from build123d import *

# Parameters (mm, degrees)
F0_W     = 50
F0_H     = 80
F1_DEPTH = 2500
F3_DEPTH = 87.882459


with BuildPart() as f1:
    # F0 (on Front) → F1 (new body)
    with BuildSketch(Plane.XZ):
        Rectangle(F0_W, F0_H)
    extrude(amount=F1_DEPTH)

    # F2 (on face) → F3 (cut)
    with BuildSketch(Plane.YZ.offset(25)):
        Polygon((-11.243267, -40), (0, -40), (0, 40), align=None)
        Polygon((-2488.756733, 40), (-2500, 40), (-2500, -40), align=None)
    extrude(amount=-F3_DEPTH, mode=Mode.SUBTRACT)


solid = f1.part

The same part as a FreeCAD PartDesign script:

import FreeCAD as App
import Part
import Sketcher
from FreeCAD import Vector
Q = App.Units.Quantity

doc = App.newDocument("Part")
body = doc.addObject("PartDesign::Body", "Body")

sketch1 = doc.addObject("Sketcher::SketchObject", "Sketch")
body.addObject(sketch1)
sketch1.AttachmentSupport = (doc.XZ_Plane, [""])
sketch1.MapMode = "FlatFace"
sketch1.addGeometry([
    Part.LineSegment(Vector(-25, 40, 0), Vector(-25, -40, 0)),
    Part.LineSegment(Vector(-25, -40, 0), Vector(25, -40, 0)),
    Part.LineSegment(Vector(25, -40, 0), Vector(25, 40, 0)),
    Part.LineSegment(Vector(25, 40, 0), Vector(-25, 40, 0)),
], False)
sketch1.addConstraint([
    Sketcher.Constraint("Coincident", 0, 2, 1, 1),
    Sketcher.Constraint("Coincident", 1, 2, 2, 1),
    Sketcher.Constraint("Coincident", 2, 2, 3, 1),
    Sketcher.Constraint("Coincident", 3, 2, 0, 1),
    Sketcher.Constraint("Vertical", 0),
    Sketcher.Constraint("Horizontal", 1),
    Sketcher.Constraint("Vertical", 2),
    Sketcher.Constraint("Horizontal", 3),
    Sketcher.Constraint("Symmetric", 0, 2, 2, 2, -1, 1),
    Sketcher.Constraint("DistanceX", 1, 1, 1, 2, 50.0),
    Sketcher.Constraint("DistanceY", 0, 2, 0, 1, 80.0),
])
pad1 = doc.addObject("PartDesign::Pad", "Pad")
body.addObject(pad1)
pad1.Profile = sketch1
pad1.Length = 2500

sketch2 = doc.addObject("Sketcher::SketchObject", "Sketch001")
body.addObject(sketch2)
sketch2.AttachmentSupport = (doc.YZ_Plane, [""])
sketch2.MapMode = "FlatFace"
sketch2.AttachmentOffset = App.Placement(Vector(0, 0, 25), App.Rotation())
sketch2.addGeometry([
    Part.LineSegment(Vector(-11, -40, 0), Vector(0, -40, 0)),
    Part.LineSegment(Vector(0, -40, 0), Vector(0, 40, 0)),
    Part.LineSegment(Vector(0, 40, 0), Vector(-11, -40, 0)),
    Part.LineSegment(Vector(-2489, 40, 0), Vector(-2500, 40, 0)),
    Part.LineSegment(Vector(-2500, 40, 0), Vector(-2500, -40, 0)),
    Part.LineSegment(Vector(-2500, -40, 0), Vector(-2489, 40, 0)),
], False)
sketch2.addConstraint([
    Sketcher.Constraint("Coincident", 0, 2, 1, 1),
    Sketcher.Constraint("Coincident", 1, 2, 2, 1),
    Sketcher.Constraint("Coincident", 2, 2, 0, 1),
    Sketcher.Constraint("Coincident", 3, 2, 4, 1),
    Sketcher.Constraint("Coincident", 4, 2, 5, 1),
    Sketcher.Constraint("Coincident", 5, 2, 3, 1),
    Sketcher.Constraint("Horizontal", 0),
    Sketcher.Constraint("Vertical", 1),
    Sketcher.Constraint("Horizontal", 3),
    Sketcher.Constraint("Vertical", 4),
    Sketcher.Constraint("Symmetric", 0, 2, 1, 2, -1, 1),
    Sketcher.Constraint("Parallel", 2, 5),
    Sketcher.Constraint("Horizontal", 1, 2, 3, 2),
    Sketcher.Constraint("Horizontal", 2, 2, 4, 2),
    Sketcher.Constraint("DistanceY", 1, 1, 1, 2, 80.0),
    Sketcher.Constraint("Angle", 2, Q("-98 deg")),
    Sketcher.Constraint("DistanceX", 3, 2, -1, 1, 2500.0),
])
pocket1 = doc.addObject("PartDesign::Pocket", "Pocket")
body.addObject(pocket1)
pocket1.Profile = sketch2
pocket1.Length = 87.882459

doc.recompute()
